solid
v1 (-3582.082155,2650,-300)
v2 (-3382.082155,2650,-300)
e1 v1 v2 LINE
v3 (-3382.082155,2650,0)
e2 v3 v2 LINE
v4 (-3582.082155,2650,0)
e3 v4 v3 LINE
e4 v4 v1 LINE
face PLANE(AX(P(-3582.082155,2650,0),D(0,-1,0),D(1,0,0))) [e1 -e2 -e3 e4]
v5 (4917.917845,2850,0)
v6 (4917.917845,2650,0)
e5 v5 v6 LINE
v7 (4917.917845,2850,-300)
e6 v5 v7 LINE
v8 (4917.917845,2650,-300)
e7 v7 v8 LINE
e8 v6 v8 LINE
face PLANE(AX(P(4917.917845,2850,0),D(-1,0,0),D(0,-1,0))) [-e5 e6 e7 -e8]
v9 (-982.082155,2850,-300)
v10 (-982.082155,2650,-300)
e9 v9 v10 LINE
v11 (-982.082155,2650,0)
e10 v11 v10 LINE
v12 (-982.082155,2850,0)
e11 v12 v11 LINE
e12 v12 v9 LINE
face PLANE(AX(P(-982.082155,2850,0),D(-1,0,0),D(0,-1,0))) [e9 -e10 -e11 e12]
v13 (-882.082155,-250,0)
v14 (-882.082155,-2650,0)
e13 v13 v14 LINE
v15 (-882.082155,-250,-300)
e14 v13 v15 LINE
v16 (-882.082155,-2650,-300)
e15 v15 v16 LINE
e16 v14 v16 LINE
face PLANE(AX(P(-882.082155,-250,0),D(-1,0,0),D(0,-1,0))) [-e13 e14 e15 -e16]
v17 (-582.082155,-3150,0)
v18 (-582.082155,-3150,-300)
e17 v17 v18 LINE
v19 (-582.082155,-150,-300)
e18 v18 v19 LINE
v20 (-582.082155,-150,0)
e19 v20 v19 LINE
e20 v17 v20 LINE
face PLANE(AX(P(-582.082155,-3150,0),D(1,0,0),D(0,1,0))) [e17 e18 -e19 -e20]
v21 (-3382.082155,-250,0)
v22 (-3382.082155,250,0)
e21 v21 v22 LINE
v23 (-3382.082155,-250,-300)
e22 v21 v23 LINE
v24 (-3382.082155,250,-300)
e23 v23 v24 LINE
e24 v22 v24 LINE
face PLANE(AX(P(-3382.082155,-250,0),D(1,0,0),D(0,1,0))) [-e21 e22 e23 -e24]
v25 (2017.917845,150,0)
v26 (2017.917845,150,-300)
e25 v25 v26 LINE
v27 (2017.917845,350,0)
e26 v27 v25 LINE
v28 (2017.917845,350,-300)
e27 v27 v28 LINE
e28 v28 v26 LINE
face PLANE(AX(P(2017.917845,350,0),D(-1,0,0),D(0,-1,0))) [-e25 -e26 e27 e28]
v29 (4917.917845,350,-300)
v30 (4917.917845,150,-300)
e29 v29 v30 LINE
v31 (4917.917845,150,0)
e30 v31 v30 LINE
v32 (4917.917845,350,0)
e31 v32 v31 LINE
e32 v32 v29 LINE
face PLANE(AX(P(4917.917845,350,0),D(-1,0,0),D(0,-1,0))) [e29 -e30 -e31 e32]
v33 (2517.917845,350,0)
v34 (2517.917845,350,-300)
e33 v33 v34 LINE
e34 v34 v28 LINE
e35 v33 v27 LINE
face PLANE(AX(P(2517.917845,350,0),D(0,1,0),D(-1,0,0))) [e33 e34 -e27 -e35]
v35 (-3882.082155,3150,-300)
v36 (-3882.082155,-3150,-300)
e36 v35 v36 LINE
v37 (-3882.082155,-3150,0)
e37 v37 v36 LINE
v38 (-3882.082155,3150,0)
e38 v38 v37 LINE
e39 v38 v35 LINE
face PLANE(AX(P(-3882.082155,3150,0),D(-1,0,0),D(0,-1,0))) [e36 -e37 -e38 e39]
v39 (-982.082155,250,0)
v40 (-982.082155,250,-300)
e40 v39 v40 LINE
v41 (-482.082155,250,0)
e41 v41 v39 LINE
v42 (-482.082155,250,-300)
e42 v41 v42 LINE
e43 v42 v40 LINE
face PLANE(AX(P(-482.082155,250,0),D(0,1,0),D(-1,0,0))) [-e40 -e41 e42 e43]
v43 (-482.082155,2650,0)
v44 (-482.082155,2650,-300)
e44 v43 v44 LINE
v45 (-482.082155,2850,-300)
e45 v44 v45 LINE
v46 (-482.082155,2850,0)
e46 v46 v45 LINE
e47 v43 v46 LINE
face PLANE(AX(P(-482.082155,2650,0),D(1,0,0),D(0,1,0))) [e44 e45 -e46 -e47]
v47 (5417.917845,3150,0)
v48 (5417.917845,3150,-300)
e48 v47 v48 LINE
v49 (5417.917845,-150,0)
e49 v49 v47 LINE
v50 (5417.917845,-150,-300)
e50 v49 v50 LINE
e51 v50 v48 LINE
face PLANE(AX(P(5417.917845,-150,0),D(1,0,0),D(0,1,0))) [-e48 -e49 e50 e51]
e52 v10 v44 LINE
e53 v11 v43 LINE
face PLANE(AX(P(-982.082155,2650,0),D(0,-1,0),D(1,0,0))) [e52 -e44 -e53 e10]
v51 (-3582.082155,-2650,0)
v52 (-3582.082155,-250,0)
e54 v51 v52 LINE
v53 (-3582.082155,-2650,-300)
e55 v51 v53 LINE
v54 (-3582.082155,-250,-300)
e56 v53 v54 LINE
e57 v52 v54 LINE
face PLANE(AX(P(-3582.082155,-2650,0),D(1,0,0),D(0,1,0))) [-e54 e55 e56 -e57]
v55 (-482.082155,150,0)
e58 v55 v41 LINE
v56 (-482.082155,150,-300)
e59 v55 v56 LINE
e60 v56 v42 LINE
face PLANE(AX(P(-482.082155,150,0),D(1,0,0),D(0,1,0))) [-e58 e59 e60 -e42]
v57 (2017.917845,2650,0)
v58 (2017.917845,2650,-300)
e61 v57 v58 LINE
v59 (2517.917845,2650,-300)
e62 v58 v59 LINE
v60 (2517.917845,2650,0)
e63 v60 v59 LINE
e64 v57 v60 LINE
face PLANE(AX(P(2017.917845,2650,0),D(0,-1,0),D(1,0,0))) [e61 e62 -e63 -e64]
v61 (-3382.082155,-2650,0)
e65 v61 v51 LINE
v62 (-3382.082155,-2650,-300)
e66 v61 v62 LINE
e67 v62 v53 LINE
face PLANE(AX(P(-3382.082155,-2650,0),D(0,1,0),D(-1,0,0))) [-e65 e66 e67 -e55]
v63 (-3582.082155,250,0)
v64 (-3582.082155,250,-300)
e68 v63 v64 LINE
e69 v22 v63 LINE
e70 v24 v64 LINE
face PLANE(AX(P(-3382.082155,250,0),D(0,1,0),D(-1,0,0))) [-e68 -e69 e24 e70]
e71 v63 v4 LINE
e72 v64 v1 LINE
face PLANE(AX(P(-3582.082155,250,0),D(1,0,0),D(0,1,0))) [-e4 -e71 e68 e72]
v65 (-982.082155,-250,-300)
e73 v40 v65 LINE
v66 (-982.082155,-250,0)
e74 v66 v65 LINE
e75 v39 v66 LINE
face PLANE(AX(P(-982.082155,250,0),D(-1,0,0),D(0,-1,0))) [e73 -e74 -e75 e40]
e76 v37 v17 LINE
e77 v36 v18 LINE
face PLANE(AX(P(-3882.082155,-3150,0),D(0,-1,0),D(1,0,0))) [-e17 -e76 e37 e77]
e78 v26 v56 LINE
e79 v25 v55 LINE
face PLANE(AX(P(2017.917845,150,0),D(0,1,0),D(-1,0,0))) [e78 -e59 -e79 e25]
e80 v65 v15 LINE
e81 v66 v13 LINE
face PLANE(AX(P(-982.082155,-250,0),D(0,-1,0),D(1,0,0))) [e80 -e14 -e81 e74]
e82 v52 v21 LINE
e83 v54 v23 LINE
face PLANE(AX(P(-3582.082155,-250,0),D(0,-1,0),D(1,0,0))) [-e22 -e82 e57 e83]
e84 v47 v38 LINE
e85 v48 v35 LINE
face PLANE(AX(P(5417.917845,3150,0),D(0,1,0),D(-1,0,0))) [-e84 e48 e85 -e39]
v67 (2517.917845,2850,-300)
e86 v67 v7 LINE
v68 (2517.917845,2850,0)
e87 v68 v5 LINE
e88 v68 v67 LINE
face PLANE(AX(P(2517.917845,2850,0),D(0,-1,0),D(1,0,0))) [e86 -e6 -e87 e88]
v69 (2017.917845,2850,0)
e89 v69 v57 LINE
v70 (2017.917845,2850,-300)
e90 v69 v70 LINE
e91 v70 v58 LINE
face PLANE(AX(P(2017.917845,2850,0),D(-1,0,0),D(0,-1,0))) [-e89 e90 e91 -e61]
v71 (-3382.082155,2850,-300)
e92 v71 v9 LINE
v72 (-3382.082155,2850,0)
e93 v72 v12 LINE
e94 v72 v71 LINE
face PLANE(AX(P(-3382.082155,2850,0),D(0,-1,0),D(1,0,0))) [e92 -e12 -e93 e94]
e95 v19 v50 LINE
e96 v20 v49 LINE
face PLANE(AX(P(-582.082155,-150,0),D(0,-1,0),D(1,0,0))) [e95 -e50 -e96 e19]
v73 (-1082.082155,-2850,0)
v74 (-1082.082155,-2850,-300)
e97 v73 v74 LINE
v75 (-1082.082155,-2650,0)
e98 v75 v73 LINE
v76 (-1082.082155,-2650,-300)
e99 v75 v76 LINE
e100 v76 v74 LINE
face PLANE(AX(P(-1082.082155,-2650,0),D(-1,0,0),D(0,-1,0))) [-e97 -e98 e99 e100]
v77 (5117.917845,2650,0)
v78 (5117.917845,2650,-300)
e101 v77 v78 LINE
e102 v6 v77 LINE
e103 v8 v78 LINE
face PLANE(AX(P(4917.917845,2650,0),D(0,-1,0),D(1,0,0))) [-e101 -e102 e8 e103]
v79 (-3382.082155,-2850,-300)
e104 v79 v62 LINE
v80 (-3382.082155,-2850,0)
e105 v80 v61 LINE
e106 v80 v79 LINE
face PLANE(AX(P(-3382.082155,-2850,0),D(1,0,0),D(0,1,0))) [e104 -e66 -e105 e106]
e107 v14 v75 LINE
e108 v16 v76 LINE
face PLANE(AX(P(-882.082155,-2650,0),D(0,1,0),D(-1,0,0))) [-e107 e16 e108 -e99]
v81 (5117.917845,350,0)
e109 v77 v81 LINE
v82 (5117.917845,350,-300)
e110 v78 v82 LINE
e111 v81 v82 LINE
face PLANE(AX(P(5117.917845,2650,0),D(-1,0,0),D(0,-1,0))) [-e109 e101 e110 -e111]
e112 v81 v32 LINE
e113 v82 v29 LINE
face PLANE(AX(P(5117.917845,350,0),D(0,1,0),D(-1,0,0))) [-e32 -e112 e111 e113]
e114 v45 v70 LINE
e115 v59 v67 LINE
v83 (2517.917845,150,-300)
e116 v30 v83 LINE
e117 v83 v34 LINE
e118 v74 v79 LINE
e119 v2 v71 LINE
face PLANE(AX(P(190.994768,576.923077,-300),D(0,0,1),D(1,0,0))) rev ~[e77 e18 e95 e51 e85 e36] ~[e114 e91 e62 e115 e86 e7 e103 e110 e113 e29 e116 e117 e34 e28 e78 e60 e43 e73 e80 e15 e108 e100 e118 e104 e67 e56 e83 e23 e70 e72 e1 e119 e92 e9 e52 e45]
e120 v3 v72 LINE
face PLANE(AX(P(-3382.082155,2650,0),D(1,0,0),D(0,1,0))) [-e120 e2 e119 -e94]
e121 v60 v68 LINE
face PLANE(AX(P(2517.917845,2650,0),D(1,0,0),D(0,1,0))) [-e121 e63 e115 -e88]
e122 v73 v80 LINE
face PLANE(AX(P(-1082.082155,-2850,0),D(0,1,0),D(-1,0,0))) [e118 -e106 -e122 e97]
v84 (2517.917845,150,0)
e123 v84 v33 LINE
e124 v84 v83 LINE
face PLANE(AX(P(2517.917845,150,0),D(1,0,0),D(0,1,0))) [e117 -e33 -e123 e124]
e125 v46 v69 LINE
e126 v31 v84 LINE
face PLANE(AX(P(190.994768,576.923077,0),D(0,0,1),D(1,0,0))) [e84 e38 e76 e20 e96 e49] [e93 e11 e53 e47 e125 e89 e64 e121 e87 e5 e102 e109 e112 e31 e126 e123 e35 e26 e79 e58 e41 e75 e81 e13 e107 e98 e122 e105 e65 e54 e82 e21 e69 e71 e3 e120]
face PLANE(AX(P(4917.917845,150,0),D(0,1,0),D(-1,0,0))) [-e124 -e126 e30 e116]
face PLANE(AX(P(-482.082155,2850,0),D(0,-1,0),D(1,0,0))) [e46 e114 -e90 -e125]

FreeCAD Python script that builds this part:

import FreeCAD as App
import Part
import Sketcher

V = App.Vector
Q = App.Units.Quantity


def add_polygon(sketch, points):
    """Adds a closed chain of lines whose ends are joined by coincident constraints."""
    first, n = sketch.GeometryCount, len(points)
    for a, b in zip(points, points[1:] + points[:1]):
        sketch.addGeometry(Part.LineSegment(App.Vector(*a, 0), App.Vector(*b, 0)), False)
    for i in range(n):
        sketch.addConstraint(Sketcher.Constraint("Coincident", first + i, 2, first + (i + 1) % n, 1))

doc = App.newDocument("Part")
body = doc.addObject("PartDesign::Body", "Body")

sketch1 = body.newObject("Sketcher::SketchObject", "Sketch")
sketch1.AttachmentSupport = (doc.getObject("XY_Plane"), [""])
sketch1.MapMode = "FlatFace"
add_polygon(sketch1, [(5418, 3150), (-3882, 3150), (-3882, -3150), (-582, -3150), (-582, -150), (5418, -150)])
add_polygon(sketch1, [(-3582, 2650), (-3382, 2650), (-3382, 2850), (-982, 2850), (-982, 2650), (-482, 2650), (-482, 2850), (2018, 2850), (2018, 2650), (2518, 2650), (2518, 2850), (4918, 2850), (4918, 2650), (5118, 2650), (5118, 350), (4918, 350), (4918, 150), (2518, 150), (2518, 350), (2018, 350), (2018, 150), (-482, 150), (-482, 250), (-982, 250), (-982, -250), (-882, -250), (-882, -2650), (-1082, -2650), (-1082, -2850), (-3382, -2850), (-3382, -2650), (-3582, -2650), (-3582, -250), (-3382, -250), (-3382, 250), (-3582, 250)])
sketch1.addConstraint([
    Sketcher.Constraint("Horizontal", 0),
    Sketcher.Constraint("Vertical", 1),
    Sketcher.Constraint("Horizontal", 2),
    Sketcher.Constraint("Vertical", 3),
    Sketcher.Constraint("Horizontal", 4),
    Sketcher.Constraint("Vertical", 5),
    Sketcher.Constraint("Horizontal", 6),
    Sketcher.Constraint("Vertical", 7),
    Sketcher.Constraint("Horizontal", 8),
    Sketcher.Constraint("Vertical", 9),
    Sketcher.Constraint("Horizontal", 10),
    Sketcher.Constraint("Vertical", 11),
    Sketcher.Constraint("Horizontal", 12),
    Sketcher.Constraint("Vertical", 13),
    Sketcher.Constraint("Horizontal", 14),
    Sketcher.Constraint("Vertical", 15),
    Sketcher.Constraint("Horizontal", 16),
    Sketcher.Constraint("Vertical", 17),
    Sketcher.Constraint("Horizontal", 18),
    Sketcher.Constraint("Vertical", 19),
    Sketcher.Constraint("Horizontal", 20),
    Sketcher.Constraint("Vertical", 21),
    Sketcher.Constraint("Horizontal", 22),
    Sketcher.Constraint("Vertical", 23),
    Sketcher.Constraint("Horizontal", 24),
    Sketcher.Constraint("Vertical", 25),
    Sketcher.Constraint("Horizontal", 26),
    Sketcher.Constraint("Vertical", 27),
    Sketcher.Constraint("Horizontal", 28),
    Sketcher.Constraint("Vertical", 29),
    Sketcher.Constraint("Horizontal", 30),
    Sketcher.Constraint("Vertical", 31),
    Sketcher.Constraint("Horizontal", 32),
    Sketcher.Constraint("Vertical", 33),
    Sketcher.Constraint("Horizontal", 34),
    Sketcher.Constraint("Vertical", 35),
    Sketcher.Constraint("Horizontal", 36),
    Sketcher.Constraint("Vertical", 37),
    Sketcher.Constraint("Horizontal", 38),
    Sketcher.Constraint("Vertical", 39),
    Sketcher.Constraint("Horizontal", 40),
    Sketcher.Constraint("Vertical", 41),
    Sketcher.Constraint("Symmetric", 7, 2, 34, 2, -1),
    Sketcher.Constraint("Symmetric", 37, 2, 40, 2, -1),
    Sketcher.Constraint("Horizontal", 6, 2, 9, 2),
    Sketcher.Constraint("Horizontal", 8, 2, 11, 2),
    Sketcher.Constraint("Horizontal", 10, 2, 13, 2),
    Sketcher.Constraint("Horizontal", 12, 2, 15, 2),
    Sketcher.Constraint("Horizontal", 14, 2, 17, 2),
    Sketcher.Constraint("Horizontal", 20, 2, 23, 2),
    Sketcher.Constraint("Horizontal", 22, 2, 25, 2),
    Sketcher.Constraint("Horizontal", 32, 2, 35, 2),
    Sketcher.Constraint("Horizontal", 30, 2, 37, 2),
    Sketcher.Constraint("Horizontal", 28, 2, 39, 2),
    Sketcher.Constraint("Vertical", 17, 2, 20, 2),
    Sketcher.Constraint("Vertical", 15, 2, 22, 2),
    Sketcher.Constraint("Vertical", 13, 2, 24, 2),
    Sketcher.Constraint("Vertical", 11, 2, 26, 2),
    Sketcher.Constraint("Vertical", 9, 2, 28, 2),
    Sketcher.Constraint("Vertical", 35, 2, 38, 2),
    Sketcher.Constraint("Equal", 10, 14),
    Sketcher.Constraint("Equal", 8, 16),
    Sketcher.Constraint("Equal", 6, 18),
    Sketcher.Constraint("Equal", 20, 32),
    Sketcher.Constraint("Equal", 2, 5),
    Sketcher.Constraint("Equal", 40, 7),
    Sketcher.Constraint("Equal", 34, 19),
    Sketcher.Constraint("Equal", 17, 21),
    Sketcher.Constraint("Equal", 30, 27),
    Sketcher.Constraint("Equal", 28, 29),
    Sketcher.Constraint("Equal", 22, 31),
    Sketcher.Constraint("DistanceX", 0, 2, 0, 1, Q("9300 mm")),
    Sketcher.Constraint("DistanceX", 2, 1, 2, 2, Q("3300 mm")),
    Sketcher.Constraint("DistanceX", 6, 1, 6, 2, Q("200 mm")),
    Sketcher.Constraint("DistanceX", 8, 1, 8, 2, Q("2400 mm")),
    Sketcher.Constraint("DistanceX", 10, 1, 10, 2, Q("500 mm")),
    Sketcher.Constraint("DistanceX", 12, 1, 12, 2, Q("2500 mm")),
    Sketcher.Constraint("DistanceX", 30, 1, 30, 2, Q("100 mm")),
    Sketcher.Constraint("DistanceY", 1, 2, 1, 1, Q("6300 mm")),
    Sketcher.Constraint("DistanceY", -1, 1, 0, 2, Q("3150 mm")),
    Sketcher.Constraint("DistanceX", 0, 2, 6, 2, Q("500 mm")),
    Sketcher.Constraint("DistanceX", 0, 2, -1, 1, Q("3882.082155 mm")),
])
pad1 = body.newObject("PartDesign::Pad", "Pad")
pad1.Profile = sketch1
pad1.Length = 300
pad1.Reversed = True

doc.recompute()
